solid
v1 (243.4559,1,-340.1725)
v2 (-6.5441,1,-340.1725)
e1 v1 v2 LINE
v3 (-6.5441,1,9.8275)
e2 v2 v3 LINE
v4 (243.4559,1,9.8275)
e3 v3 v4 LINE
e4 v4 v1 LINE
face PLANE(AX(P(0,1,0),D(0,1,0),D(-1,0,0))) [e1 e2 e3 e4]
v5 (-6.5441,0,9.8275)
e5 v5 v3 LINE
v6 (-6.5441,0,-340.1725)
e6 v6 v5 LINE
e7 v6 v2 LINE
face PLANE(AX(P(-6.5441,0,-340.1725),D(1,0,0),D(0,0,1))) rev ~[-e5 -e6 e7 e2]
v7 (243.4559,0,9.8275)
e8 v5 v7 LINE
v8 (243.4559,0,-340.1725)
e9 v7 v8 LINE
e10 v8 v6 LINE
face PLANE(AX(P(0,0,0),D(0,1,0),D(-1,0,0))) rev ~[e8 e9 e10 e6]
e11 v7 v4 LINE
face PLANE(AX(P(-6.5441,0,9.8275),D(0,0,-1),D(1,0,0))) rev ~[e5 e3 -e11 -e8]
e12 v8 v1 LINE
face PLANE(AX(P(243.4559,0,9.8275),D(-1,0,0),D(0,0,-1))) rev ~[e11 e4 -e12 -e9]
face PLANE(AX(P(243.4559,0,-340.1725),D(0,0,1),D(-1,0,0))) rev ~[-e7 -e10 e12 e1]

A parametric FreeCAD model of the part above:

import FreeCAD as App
import Part
import Sketcher
from FreeCAD import Vector
Q = App.Units.Quantity


def add_polygon(sketch, points):
    """Adds a closed chain of lines whose ends are joined by coincident constraints."""
    first, n = sketch.GeometryCount, len(points)
    for a, b in zip(points, points[1:] + points[:1]):
        sketch.addGeometry(Part.LineSegment(App.Vector(*a, 0), App.Vector(*b, 0)), False)
    for i in range(n):
        sketch.addConstraint(Sketcher.Constraint("Coincident", first + i, 2, first + (i + 1) % n, 1))

doc = App.newDocument("Part")
body = doc.addObject("PartDesign::Body", "Body")

# Sketch on XZ plane
sketch1 = body.newObject("Sketcher::SketchObject", "Sketch")
sketch1.AttachmentSupport = (doc.getObject("XZ_Plane"), [""])
sketch1.MapMode = "FlatFace"
add_polygon(sketch1, [(-6.5441, -340.1725), (-6.5441, 9.8275), (243.4559, 9.8275), (243.4559, -340.1725)])  # lines 0-3
sketch1.addConstraint(Sketcher.Constraint("Vertical", 0))
sketch1.addConstraint(Sketcher.Constraint("Horizontal", 1))
sketch1.addConstraint(Sketcher.Constraint("Vertical", 2))
sketch1.addConstraint(Sketcher.Constraint("Horizontal", 3))
sketch1.addConstraint(Sketcher.Constraint("DistanceX", 1, 1, 1, 2, Q("250 mm")))
sketch1.addConstraint(Sketcher.Constraint("DistanceY", 0, 1, 0, 2, Q("350 mm")))
sketch1.addConstraint(Sketcher.Constraint("DistanceX", 0, 2, -1, 1, Q("6.544 mm")))
sketch1.addConstraint(Sketcher.Constraint("DistanceY", -1, 1, 0, 2, Q("9.8275 mm")))
pad1 = body.newObject("PartDesign::Pad", "Pad")
pad1.Profile = sketch1
pad1.Length = 1
pad1.Reversed = True

doc.recompute()
